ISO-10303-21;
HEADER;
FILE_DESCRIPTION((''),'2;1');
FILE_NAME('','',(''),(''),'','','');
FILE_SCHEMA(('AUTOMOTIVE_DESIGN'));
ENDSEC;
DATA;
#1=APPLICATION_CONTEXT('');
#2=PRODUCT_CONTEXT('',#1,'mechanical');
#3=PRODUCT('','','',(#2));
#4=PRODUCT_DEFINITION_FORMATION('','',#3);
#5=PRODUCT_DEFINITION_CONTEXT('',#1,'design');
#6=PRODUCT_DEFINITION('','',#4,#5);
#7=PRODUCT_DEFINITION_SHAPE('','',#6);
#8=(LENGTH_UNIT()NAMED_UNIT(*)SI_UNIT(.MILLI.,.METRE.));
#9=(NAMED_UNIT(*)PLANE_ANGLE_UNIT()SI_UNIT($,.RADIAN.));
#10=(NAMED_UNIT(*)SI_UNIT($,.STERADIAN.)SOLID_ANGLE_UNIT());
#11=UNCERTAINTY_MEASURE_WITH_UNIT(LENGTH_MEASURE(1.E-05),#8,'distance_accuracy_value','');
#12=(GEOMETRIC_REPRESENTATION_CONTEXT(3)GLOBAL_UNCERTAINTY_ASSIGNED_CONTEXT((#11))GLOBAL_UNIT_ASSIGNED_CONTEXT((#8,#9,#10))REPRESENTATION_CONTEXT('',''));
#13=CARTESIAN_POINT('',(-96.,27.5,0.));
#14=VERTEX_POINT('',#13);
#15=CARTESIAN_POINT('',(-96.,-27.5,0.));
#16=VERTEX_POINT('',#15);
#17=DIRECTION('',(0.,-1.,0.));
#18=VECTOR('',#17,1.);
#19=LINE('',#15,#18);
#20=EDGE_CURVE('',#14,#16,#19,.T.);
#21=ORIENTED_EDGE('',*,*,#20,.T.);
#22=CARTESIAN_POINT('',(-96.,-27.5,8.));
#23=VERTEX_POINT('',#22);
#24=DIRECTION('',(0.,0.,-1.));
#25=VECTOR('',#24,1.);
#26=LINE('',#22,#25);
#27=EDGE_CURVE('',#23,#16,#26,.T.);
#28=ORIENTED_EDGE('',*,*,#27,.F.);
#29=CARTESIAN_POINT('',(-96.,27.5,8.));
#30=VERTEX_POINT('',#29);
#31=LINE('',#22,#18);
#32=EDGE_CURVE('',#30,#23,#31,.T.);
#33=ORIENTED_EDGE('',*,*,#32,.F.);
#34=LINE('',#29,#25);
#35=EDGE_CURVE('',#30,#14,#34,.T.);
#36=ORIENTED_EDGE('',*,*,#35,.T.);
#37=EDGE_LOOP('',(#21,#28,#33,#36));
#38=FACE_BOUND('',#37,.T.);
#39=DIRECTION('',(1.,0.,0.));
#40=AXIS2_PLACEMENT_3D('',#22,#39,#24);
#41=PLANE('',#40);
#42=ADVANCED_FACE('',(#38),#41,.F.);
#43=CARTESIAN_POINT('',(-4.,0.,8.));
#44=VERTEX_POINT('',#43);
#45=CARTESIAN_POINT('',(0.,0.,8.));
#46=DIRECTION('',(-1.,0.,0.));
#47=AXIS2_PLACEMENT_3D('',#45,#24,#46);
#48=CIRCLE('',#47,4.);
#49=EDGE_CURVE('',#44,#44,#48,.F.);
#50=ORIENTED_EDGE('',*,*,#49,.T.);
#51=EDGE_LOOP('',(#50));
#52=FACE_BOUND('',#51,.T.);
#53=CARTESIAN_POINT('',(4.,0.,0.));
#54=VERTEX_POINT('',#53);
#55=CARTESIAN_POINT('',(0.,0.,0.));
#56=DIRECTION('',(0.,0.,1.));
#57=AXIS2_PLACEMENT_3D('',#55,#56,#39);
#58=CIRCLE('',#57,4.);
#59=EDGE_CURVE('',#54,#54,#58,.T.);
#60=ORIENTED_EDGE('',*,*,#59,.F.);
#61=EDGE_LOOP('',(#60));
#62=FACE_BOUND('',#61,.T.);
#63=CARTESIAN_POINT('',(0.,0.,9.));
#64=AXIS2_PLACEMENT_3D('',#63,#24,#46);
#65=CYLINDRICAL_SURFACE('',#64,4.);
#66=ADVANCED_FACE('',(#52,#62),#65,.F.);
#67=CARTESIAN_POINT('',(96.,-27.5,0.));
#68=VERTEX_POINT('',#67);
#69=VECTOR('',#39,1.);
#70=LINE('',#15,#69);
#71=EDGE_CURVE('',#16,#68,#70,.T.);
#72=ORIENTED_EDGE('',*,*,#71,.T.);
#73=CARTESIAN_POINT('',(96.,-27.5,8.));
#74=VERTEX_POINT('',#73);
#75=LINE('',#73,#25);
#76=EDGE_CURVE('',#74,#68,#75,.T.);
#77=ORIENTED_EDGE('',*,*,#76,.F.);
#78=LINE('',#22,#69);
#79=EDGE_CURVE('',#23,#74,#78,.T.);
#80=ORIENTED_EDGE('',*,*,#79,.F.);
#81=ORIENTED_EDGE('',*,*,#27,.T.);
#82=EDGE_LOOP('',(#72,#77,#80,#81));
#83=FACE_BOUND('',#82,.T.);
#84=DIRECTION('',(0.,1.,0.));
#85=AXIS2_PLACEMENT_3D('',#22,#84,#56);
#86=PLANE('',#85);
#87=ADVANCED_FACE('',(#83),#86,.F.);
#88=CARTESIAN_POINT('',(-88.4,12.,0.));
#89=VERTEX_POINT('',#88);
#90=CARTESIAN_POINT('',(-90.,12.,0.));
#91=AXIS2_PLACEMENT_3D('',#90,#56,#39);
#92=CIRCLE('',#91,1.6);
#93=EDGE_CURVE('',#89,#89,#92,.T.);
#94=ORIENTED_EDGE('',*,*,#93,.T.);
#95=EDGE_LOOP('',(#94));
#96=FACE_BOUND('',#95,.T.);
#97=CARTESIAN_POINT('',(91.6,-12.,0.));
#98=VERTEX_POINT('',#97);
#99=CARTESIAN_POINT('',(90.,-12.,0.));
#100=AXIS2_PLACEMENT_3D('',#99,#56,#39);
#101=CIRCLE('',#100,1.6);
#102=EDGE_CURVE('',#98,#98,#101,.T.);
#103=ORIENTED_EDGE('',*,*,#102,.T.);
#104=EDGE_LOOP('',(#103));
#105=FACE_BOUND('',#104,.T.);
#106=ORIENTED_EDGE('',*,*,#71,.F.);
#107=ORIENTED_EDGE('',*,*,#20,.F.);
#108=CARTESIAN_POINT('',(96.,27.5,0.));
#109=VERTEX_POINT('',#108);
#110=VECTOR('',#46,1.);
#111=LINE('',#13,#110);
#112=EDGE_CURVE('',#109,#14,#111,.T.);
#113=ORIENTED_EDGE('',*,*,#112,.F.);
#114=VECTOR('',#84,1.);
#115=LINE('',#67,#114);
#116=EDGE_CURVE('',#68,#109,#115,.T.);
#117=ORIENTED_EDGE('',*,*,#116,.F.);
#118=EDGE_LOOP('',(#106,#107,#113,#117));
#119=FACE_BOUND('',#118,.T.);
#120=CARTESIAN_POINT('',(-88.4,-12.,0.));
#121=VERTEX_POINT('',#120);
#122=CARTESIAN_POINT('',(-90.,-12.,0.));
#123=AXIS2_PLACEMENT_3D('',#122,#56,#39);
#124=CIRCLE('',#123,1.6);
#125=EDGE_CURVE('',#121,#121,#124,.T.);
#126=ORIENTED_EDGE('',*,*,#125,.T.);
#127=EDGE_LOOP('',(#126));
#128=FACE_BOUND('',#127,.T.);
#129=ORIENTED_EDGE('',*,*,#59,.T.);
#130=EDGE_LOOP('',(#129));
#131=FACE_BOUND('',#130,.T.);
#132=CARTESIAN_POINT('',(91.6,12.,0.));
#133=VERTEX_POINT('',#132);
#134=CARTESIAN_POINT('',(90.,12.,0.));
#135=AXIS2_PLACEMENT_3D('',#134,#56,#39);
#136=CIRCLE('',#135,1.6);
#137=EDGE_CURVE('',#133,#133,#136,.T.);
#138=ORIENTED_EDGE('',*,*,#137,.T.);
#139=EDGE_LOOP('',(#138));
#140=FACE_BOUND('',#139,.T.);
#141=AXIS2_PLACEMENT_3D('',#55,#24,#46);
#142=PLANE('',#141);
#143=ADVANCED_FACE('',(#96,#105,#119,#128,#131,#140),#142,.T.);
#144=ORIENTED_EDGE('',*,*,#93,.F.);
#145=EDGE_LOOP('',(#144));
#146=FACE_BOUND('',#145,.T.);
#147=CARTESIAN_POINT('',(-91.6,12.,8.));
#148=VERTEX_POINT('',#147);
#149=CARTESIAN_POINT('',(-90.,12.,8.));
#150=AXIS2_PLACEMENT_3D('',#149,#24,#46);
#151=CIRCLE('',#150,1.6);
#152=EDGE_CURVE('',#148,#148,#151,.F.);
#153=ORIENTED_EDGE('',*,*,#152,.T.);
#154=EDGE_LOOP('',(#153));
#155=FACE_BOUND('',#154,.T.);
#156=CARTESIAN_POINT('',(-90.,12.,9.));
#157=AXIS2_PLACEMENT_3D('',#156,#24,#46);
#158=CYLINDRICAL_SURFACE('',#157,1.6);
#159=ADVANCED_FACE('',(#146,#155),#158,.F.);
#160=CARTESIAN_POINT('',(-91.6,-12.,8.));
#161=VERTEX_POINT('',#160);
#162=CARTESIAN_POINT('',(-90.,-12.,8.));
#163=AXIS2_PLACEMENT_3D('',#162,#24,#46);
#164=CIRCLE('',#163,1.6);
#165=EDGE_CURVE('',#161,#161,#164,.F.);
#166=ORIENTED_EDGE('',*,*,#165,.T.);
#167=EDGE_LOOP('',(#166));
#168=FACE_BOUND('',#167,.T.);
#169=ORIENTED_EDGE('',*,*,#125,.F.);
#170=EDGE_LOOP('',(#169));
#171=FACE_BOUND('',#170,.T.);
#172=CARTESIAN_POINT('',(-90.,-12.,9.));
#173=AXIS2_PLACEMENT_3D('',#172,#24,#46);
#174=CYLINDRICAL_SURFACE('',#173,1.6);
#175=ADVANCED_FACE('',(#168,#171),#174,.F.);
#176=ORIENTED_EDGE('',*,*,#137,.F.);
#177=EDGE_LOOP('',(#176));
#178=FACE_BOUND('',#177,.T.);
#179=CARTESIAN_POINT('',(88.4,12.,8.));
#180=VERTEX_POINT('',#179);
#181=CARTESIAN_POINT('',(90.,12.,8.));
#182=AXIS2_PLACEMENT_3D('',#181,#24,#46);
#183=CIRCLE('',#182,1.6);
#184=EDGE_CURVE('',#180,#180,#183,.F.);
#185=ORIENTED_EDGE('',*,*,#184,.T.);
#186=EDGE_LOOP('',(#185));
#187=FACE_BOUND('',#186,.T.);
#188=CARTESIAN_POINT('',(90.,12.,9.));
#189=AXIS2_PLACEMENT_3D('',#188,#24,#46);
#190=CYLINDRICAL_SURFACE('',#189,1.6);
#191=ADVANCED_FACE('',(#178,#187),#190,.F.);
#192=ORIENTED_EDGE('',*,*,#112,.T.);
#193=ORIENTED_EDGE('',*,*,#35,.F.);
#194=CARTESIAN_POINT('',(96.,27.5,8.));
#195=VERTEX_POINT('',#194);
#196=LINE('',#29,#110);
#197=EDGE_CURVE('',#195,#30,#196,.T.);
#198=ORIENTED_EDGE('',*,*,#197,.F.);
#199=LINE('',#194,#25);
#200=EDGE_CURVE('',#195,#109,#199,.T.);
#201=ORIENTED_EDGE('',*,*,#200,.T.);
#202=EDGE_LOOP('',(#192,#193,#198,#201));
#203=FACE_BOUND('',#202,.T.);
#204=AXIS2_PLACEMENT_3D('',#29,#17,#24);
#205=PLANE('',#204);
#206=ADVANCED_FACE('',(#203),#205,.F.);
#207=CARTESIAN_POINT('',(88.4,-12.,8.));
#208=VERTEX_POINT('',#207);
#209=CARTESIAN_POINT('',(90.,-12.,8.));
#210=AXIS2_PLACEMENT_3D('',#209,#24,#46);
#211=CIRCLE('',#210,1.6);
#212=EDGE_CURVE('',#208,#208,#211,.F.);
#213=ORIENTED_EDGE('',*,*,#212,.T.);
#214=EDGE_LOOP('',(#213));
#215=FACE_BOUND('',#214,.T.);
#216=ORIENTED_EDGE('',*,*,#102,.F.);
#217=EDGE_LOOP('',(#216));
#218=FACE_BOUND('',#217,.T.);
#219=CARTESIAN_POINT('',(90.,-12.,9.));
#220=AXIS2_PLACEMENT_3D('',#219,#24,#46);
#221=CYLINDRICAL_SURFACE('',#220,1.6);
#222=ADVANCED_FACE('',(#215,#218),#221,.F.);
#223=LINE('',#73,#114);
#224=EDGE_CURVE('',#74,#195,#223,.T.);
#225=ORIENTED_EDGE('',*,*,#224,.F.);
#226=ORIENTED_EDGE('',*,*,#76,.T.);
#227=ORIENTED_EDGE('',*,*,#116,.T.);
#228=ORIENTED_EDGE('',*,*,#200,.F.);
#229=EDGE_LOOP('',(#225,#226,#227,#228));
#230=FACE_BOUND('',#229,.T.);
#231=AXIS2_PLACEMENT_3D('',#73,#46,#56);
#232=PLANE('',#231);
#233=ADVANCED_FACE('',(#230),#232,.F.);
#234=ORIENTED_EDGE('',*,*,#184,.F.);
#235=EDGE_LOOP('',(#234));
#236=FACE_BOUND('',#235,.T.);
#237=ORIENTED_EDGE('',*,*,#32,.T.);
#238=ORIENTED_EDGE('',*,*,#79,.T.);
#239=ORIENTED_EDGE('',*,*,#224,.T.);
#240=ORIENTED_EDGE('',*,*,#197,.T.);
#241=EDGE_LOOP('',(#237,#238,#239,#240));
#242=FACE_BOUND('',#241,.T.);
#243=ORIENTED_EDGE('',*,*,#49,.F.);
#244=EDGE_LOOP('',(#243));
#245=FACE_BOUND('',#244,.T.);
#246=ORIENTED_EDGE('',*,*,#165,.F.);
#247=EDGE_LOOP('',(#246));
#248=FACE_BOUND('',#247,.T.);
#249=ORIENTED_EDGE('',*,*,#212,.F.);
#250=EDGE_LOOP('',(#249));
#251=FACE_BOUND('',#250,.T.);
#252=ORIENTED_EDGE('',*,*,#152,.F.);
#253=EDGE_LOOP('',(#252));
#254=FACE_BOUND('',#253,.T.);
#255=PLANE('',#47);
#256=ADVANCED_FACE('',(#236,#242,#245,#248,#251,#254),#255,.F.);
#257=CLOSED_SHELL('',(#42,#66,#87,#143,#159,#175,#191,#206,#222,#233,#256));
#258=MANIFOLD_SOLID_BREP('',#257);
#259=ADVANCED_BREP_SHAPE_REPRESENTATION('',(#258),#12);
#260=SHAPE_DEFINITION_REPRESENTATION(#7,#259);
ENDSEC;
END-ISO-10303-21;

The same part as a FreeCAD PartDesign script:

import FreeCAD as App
import Part
import Sketcher
from FreeCAD import Vector
Q = App.Units.Quantity


def add_polygon(sketch, points):
    """Adds a closed chain of lines whose ends are joined by coincident constraints."""
    first, n = sketch.GeometryCount, len(points)
    for a, b in zip(points, points[1:] + points[:1]):
        sketch.addGeometry(Part.LineSegment(App.Vector(*a, 0), App.Vector(*b, 0)), False)
    for i in range(n):
        sketch.addConstraint(Sketcher.Constraint("Coincident", first + i, 2, first + (i + 1) % n, 1))

doc = App.newDocument("Part")
body = doc.addObject("PartDesign::Body", "Body")

# Sketch on XY plane
sketch1 = body.newObject("Sketcher::SketchObject", "Sketch")
sketch1.AttachmentSupport = (doc.getObject("XY_Plane"), [""])
sketch1.MapMode = "FlatFace"
add_polygon(sketch1, [(-96, 28), (-96, -28), (96, -28), (96, 28)])  # lines 0-3
sketch1.addConstraint([
    Sketcher.Constraint("Vertical", 0),
    Sketcher.Constraint("Horizontal", 1),
    Sketcher.Constraint("Vertical", 2),
    Sketcher.Constraint("Horizontal", 3),
    Sketcher.Constraint("Symmetric", 0, 2, 2, 2, -1, 1),
    Sketcher.Constraint("DistanceX", 1, 1, 1, 2, Q("192 mm")),
    Sketcher.Constraint("DistanceY", 0, 2, 0, 1, Q("55 mm")),
])
pad1 = body.newObject("PartDesign::Pad", "Pad")
pad1.Profile = sketch1
pad1.Length = 8

# Sketch on XY plane
sketch2 = body.newObject("Sketcher::SketchObject", "Sketch001")
sketch2.AttachmentSupport = (doc.getObject("XY_Plane"), [""])
sketch2.MapMode = "FlatFace"
sketch2.addGeometry([
    Part.Circle(Vector(0, 0, 0), Vector(0, 0, 1), 4),  # 0
    Part.Circle(Vector(-90, 12, 0), Vector(0, 0, 1), 1.6),  # 1
    Part.Circle(Vector(-90, -12, 0), Vector(0, 0, 1), 1.6),  # 2
    Part.Circle(Vector(90, 12, 0), Vector(0, 0, 1), 1.6),  # 3
    Part.Circle(Vector(90, -12, 0), Vector(0, 0, 1), 1.6),  # 4
], False)
sketch2.addConstraint([
    Sketcher.Constraint("Coincident", 0, 3, -1, 1),
    Sketcher.Constraint("Equal", 1, 2),
    Sketcher.Constraint("Equal", 2, 3),
    Sketcher.Constraint("Equal", 3, 4),
    Sketcher.Constraint("Symmetric", 2, 3, 3, 3, -1, 1),
    Sketcher.Constraint("Symmetric", 1, 3, 4, 3, -1, 1),
    Sketcher.Constraint("Symmetric", 1, 3, 3, 3, -2),
    Sketcher.Constraint("Diameter", 0, Q("8 mm")),
    Sketcher.Constraint("Diameter", 1, Q("3.2 mm")),
    Sketcher.Constraint("DistanceX", 1, 3, -1, 1, Q("90 mm")),
    Sketcher.Constraint("DistanceY", -1, 1, 1, 3, Q("12 mm")),
])
pocket1 = body.newObject("PartDesign::Pocket", "Pocket")
pocket1.Profile = sketch2
pocket1.Length = 9
pocket1.Reversed = True

doc.recompute()
